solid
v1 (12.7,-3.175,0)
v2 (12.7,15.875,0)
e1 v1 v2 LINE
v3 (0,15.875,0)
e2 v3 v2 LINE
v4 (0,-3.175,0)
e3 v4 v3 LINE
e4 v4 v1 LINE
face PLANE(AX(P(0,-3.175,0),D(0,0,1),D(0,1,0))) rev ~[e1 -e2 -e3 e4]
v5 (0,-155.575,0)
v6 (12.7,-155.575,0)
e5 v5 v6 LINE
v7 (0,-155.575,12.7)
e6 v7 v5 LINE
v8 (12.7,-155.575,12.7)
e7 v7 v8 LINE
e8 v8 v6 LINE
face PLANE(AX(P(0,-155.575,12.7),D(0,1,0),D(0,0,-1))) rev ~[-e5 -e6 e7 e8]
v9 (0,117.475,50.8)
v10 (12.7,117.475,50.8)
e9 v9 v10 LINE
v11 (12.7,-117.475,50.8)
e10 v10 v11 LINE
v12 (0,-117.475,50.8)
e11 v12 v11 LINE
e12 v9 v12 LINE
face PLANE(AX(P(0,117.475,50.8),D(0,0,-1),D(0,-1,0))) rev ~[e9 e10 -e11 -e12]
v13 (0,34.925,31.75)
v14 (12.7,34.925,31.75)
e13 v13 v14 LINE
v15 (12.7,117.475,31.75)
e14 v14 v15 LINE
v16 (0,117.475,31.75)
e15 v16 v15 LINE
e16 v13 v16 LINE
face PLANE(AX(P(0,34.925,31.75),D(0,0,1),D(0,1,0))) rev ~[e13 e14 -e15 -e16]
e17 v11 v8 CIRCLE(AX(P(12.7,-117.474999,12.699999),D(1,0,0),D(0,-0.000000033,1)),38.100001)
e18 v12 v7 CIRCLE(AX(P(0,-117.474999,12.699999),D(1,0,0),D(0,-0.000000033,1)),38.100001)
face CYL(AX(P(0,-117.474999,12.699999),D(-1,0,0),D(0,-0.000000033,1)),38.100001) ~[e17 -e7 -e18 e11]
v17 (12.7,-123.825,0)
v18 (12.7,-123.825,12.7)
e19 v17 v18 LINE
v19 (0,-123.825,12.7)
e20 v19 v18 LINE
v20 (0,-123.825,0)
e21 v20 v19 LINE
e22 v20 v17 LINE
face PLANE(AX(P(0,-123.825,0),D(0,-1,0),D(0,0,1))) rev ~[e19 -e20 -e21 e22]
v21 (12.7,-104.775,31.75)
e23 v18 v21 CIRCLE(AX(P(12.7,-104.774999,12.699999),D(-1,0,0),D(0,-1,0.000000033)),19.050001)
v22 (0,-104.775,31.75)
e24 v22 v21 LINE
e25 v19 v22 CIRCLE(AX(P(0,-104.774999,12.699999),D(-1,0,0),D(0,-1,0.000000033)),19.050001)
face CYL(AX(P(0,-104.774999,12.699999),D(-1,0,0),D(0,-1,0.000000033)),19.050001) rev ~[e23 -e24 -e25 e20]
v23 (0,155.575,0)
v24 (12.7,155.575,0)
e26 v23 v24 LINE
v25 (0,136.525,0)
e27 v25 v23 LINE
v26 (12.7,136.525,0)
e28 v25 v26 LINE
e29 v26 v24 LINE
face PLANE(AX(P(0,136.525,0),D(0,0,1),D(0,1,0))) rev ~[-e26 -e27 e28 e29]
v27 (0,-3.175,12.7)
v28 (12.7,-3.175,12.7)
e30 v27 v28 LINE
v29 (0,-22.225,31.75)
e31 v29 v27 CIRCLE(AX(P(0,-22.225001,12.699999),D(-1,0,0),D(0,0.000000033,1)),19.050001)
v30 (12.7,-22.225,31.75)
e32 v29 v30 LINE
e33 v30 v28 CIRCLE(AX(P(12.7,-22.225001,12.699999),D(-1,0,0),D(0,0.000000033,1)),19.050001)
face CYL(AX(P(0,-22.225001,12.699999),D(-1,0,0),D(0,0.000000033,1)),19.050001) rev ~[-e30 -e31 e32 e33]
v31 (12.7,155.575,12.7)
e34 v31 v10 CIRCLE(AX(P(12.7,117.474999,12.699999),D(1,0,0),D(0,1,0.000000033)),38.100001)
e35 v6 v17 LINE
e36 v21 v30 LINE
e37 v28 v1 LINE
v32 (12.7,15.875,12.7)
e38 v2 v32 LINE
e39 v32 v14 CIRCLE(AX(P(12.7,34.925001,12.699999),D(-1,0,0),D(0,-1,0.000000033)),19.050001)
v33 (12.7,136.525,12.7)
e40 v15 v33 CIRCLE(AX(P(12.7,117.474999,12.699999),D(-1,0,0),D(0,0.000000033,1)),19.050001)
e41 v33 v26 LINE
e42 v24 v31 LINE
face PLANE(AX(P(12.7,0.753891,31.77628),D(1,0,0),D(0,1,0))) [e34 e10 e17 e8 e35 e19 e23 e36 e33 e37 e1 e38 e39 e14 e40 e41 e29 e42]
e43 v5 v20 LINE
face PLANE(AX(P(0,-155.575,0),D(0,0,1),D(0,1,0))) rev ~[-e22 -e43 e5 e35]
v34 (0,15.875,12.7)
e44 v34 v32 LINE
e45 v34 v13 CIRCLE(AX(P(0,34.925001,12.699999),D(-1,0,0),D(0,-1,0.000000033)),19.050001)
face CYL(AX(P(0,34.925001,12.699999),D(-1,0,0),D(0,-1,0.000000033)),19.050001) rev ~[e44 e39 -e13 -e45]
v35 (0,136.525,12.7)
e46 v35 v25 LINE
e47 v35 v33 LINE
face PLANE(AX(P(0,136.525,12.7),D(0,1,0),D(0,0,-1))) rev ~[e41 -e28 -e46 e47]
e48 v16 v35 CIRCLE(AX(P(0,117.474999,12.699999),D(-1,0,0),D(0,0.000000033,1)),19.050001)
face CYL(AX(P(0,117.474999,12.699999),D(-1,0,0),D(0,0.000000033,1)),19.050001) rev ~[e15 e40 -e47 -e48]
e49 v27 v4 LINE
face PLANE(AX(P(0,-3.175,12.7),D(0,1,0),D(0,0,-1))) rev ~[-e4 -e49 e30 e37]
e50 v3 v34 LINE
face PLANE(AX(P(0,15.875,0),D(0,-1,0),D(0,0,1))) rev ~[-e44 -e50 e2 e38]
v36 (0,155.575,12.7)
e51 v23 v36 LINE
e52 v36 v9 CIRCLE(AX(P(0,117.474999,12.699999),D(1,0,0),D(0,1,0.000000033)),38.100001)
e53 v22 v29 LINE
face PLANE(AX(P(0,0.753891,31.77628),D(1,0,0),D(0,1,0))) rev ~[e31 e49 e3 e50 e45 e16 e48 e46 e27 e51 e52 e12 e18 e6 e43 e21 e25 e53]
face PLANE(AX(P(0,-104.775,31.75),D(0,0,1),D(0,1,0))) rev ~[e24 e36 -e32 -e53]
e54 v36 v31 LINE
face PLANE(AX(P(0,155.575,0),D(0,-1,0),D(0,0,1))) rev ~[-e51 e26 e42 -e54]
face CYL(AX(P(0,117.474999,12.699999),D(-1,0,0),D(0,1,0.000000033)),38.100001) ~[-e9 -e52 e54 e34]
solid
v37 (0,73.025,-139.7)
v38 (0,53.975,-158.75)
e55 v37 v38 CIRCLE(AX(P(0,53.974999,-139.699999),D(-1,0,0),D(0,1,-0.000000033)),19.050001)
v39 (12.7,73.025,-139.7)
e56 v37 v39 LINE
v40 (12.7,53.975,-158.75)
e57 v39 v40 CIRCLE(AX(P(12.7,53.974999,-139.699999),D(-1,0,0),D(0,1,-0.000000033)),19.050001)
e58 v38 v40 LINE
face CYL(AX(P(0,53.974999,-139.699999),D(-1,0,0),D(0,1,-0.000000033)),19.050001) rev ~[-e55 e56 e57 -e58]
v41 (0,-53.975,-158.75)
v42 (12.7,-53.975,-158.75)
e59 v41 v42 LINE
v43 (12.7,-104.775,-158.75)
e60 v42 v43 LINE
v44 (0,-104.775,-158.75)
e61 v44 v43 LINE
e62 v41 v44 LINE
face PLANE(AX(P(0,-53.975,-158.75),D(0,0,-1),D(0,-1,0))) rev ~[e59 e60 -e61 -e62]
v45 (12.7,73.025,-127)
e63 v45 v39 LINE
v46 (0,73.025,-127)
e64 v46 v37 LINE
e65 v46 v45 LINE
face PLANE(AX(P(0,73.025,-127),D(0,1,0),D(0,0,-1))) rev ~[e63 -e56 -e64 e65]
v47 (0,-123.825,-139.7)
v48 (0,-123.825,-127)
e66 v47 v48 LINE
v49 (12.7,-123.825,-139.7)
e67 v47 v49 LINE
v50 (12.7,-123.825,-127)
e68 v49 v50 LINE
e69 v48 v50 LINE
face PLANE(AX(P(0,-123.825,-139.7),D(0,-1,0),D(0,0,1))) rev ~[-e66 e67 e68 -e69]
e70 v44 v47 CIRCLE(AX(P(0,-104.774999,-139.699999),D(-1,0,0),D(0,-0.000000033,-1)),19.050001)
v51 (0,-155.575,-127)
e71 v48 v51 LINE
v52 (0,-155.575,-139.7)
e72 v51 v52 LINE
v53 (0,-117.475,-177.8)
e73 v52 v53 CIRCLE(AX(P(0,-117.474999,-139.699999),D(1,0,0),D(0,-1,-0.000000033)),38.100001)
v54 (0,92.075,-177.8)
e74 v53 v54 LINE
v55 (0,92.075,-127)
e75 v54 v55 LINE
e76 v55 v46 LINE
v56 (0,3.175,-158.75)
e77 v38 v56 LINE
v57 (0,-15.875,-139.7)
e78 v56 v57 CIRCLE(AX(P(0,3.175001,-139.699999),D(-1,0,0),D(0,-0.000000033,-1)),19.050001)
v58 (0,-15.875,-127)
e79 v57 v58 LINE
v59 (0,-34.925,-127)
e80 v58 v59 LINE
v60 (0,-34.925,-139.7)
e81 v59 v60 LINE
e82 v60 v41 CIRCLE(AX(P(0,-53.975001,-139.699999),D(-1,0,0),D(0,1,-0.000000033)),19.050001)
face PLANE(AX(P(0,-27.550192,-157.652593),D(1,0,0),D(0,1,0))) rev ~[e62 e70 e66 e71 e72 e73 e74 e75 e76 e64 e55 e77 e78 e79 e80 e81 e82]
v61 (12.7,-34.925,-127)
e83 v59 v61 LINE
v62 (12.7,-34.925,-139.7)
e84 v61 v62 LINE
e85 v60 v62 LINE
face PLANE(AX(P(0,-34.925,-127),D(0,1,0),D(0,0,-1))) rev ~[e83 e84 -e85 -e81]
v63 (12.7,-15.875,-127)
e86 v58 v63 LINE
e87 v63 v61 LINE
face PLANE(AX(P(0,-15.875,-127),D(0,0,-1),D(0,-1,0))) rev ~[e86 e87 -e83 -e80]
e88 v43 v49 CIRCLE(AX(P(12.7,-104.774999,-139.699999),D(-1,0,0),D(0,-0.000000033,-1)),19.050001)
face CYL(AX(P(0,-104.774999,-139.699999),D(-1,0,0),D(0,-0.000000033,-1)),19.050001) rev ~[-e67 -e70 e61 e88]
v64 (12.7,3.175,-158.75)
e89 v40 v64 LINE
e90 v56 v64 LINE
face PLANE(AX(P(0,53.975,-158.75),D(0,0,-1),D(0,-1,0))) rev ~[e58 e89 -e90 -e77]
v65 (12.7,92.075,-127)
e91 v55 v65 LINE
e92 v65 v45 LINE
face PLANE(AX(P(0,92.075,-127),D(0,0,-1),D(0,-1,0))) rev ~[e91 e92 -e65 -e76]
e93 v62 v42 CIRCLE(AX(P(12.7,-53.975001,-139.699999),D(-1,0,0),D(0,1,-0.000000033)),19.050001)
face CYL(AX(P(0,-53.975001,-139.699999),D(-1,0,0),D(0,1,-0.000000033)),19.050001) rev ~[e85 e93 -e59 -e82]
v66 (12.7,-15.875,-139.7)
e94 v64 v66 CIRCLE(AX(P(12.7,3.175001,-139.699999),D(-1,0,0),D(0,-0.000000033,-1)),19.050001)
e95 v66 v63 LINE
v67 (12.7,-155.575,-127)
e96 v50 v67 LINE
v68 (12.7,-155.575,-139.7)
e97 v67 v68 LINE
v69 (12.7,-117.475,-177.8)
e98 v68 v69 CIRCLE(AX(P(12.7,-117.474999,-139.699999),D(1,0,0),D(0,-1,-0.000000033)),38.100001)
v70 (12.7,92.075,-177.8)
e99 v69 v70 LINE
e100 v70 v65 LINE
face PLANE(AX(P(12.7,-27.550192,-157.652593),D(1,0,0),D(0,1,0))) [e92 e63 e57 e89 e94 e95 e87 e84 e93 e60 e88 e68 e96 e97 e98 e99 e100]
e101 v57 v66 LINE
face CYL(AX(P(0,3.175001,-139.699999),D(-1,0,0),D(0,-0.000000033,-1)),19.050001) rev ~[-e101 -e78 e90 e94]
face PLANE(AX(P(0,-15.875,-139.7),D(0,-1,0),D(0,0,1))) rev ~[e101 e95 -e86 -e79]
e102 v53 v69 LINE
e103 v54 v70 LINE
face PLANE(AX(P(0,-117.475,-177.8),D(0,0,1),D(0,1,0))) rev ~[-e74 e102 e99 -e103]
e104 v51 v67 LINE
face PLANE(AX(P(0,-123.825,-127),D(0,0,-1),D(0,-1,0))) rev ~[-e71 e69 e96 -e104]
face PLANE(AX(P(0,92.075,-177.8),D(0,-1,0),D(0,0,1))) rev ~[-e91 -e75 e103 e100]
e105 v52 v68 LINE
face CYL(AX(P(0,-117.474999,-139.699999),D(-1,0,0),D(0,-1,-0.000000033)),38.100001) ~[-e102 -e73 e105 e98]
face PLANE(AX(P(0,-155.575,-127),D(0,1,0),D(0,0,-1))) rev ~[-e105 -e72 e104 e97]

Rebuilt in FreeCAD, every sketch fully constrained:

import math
import FreeCAD as App
import Part
import Sketcher

V = App.Vector
Q = App.Units.Quantity

doc = App.newDocument("Part")
body = doc.addObject("PartDesign::Body", "Body")

# Sketch on YZ plane
sketch1 = body.newObject("Sketcher::SketchObject", "Sketch")
sketch1.AttachmentSupport = (doc.getObject("YZ_Plane"), [""])
sketch1.MapMode = "FlatFace"
sketch1.addGeometry([
    Part.LineSegment(V(-155.575, 12.7, 0), V(-155.575, 0, 0)),  # 0
    Part.LineSegment(V(-155.575, 0, 0), V(-123.825, 0, 0)),  # 1
    Part.LineSegment(V(-123.825, 0, 0), V(-123.825, 12.7, 0)),  # 2
    Part.ArcOfCircle(Part.Circle(V(-104.774999, 12.699999, 0), V(0, 0, 1), 19.050001), math.radians(90.000002), math.radians(179.999998)),  # 3
    Part.LineSegment(V(-104.775, 31.75, 0), V(-22.225, 31.75, 0)),  # 4
    Part.ArcOfCircle(Part.Circle(V(-22.225001, 12.699999, 0), V(0, 0, 1), 19.050001), math.radians(0.000002), math.radians(89.999998)),  # 5
    Part.LineSegment(V(-3.175, 12.7, 0), V(-3.175, 0, 0)),  # 6
    Part.LineSegment(V(-3.175, 0, 0), V(15.875, 0, 0)),  # 7
    Part.LineSegment(V(15.875, 0, 0), V(15.875, 12.7, 0)),  # 8
    Part.ArcOfCircle(Part.Circle(V(34.925001, 12.699999, 0), V(0, 0, 1), 19.050001), math.radians(90.000002), math.radians(179.999998)),  # 9
    Part.LineSegment(V(34.925, 31.75, 0), V(117.475, 31.75, 0)),  # 10
    Part.ArcOfCircle(Part.Circle(V(117.474999, 12.699999, 0), V(0, 0, 1), 19.050001), math.radians(0.000002), math.radians(89.999998)),  # 11
    Part.LineSegment(V(136.525, 12.7, 0), V(136.525, 0, 0)),  # 12
    Part.LineSegment(V(136.525, 0, 0), V(155.575, 0, 0)),  # 13
    Part.LineSegment(V(155.575, 0, 0), V(155.575, 12.7, 0)),  # 14
    Part.ArcOfCircle(Part.Circle(V(117.474999, 12.699999, 0), V(0, 0, 1), 38.100001), math.radians(0.000002), math.radians(89.999998)),  # 15
    Part.LineSegment(V(117.475, 50.8, 0), V(-117.475, 50.8, 0)),  # 16
    Part.ArcOfCircle(Part.Circle(V(-117.474999, 12.699999, 0), V(0, 0, 1), 38.100001), math.radians(90.000002), math.radians(179.999998)),  # 17
], False)
sketch1.addConstraint([
    Sketcher.Constraint("Coincident", 0, 2, 1, 1),
    Sketcher.Constraint("Coincident", 1, 2, 2, 1),
    Sketcher.Constraint("Tangent", 2, 2, 3, 2),
    Sketcher.Constraint("Tangent", 3, 1, 4, 1),
    Sketcher.Constraint("Tangent", 4, 2, 5, 2),
    Sketcher.Constraint("Tangent", 5, 1, 6, 1),
    Sketcher.Constraint("Coincident", 6, 2, 7, 1),
    Sketcher.Constraint("Coincident", 7, 2, 8, 1),
    Sketcher.Constraint("Tangent", 8, 2, 9, 2),
    Sketcher.Constraint("Tangent", 9, 1, 10, 1),
    Sketcher.Constraint("Tangent", 10, 2, 11, 2),
    Sketcher.Constraint("Tangent", 11, 1, 12, 1),
    Sketcher.Constraint("Coincident", 12, 2, 13, 1),
    Sketcher.Constraint("Coincident", 13, 2, 14, 1),
    Sketcher.Constraint("Tangent", 14, 2, 15, 1),
    Sketcher.Constraint("Tangent", 15, 2, 16, 1),
    Sketcher.Constraint("Tangent", 16, 2, 17, 1),
    Sketcher.Constraint("Tangent", 17, 2, 0, 1),
    Sketcher.Constraint("Vertical", 0),
    Sketcher.Constraint("Horizontal", 1),
    Sketcher.Constraint("Vertical", 2),
    Sketcher.Constraint("Horizontal", 4),
    Sketcher.Constraint("Vertical", 6),
    Sketcher.Constraint("Horizontal", 7),
    Sketcher.Constraint("Vertical", 8),
    Sketcher.Constraint("Horizontal", 10),
    Sketcher.Constraint("Vertical", 12),
    Sketcher.Constraint("Horizontal", 13),
    Sketcher.Constraint("Vertical", 14),
    Sketcher.Constraint("Horizontal", 16),
    Sketcher.Constraint("Coincident", 15, 3, 11, 3),
    Sketcher.Constraint("Equal", 3, 5),
    Sketcher.Constraint("Equal", 5, 9),
    Sketcher.Constraint("Equal", 9, 11),
    Sketcher.Constraint("Equal", 15, 17),
    Sketcher.Constraint("Symmetric", 0, 2, 13, 2, -1, 1),
    Sketcher.Constraint("PointOnObject", 0, 2, -1),
    Sketcher.Constraint("PointOnObject", 6, 2, -1),
    Sketcher.Constraint("Horizontal", 5, 3, 9, 3),
    Sketcher.Constraint("Equal", 4, 10),
    Sketcher.Constraint("Equal", 7, 13),
    Sketcher.Constraint("Radius", 15, Q("1.5 in")),
    Sketcher.Constraint("Radius", 3, Q("0.75 in")),
    Sketcher.Constraint("DistanceY", 0, 2, 0, 1, Q("0.5 in")),
    Sketcher.Constraint("DistanceX", 17, 3, 9, 3, Q("6 in")),
    Sketcher.Constraint("DistanceX", 0, 2, 3, 3, Q("2 in")),
])
pad1 = body.newObject("PartDesign::Pad", "Pad")
pad1.Profile = sketch1
pad1.Length = Q("0.5 in")
body2 = doc.addObject("PartDesign::Body", "Body001")

# Sketch on YZ plane
sketch2 = body2.newObject("Sketcher::SketchObject", "Sketch001")
sketch2.AttachmentSupport = (doc.getObject("YZ_Plane001"), [""])
sketch2.MapMode = "FlatFace"
sketch2.addGeometry([
    Part.LineSegment(V(-123.825, -127, 0), V(-155.575, -127, 0)),  # 0
    Part.LineSegment(V(-155.575, -127, 0), V(-155.575, -139.7, 0)),  # 1
    Part.ArcOfCircle(Part.Circle(V(-117.474999, -139.699999, 0), V(0, 0, 1), 38.100001), math.radians(-179.999998), math.radians(-90.000002)),  # 2
    Part.LineSegment(V(-117.475, -177.8, 0), V(92.075, -177.8, 0)),  # 3
    Part.LineSegment(V(92.075, -177.8, 0), V(92.075, -127, 0)),  # 4
    Part.LineSegment(V(92.075, -127, 0), V(73.025, -127, 0)),  # 5
    Part.LineSegment(V(73.025, -127, 0), V(73.025, -139.7, 0)),  # 6
    Part.ArcOfCircle(Part.Circle(V(53.974999, -139.699999, 0), V(0, 0, 1), 19.050001), math.radians(-89.999998), math.radians(-0.000002)),  # 7
    Part.LineSegment(V(53.975, -158.75, 0), V(3.175, -158.75, 0)),  # 8
    Part.ArcOfCircle(Part.Circle(V(3.175001, -139.699999, 0), V(0, 0, 1), 19.050001), math.radians(-179.999998), math.radians(-90.000002)),  # 9
    Part.LineSegment(V(-15.875, -139.7, 0), V(-15.875, -127, 0)),  # 10
    Part.LineSegment(V(-15.875, -127, 0), V(-34.925, -127, 0)),  # 11
    Part.LineSegment(V(-34.925, -127, 0), V(-34.925, -139.7, 0)),  # 12
    Part.ArcOfCircle(Part.Circle(V(-53.975001, -139.699999, 0), V(0, 0, 1), 19.050001), math.radians(-89.999998), math.radians(-0.000002)),  # 13
    Part.LineSegment(V(-53.975, -158.75, 0), V(-104.775, -158.75, 0)),  # 14
    Part.ArcOfCircle(Part.Circle(V(-104.774999, -139.699999, 0), V(0, 0, 1), 19.050001), math.radians(-179.999998), math.radians(-90.000002)),  # 15
    Part.LineSegment(V(-123.825, -139.7, 0), V(-123.825, -127, 0)),  # 16
], False)
sketch2.addConstraint([
    Sketcher.Constraint("Coincident", 0, 2, 1, 1),
    Sketcher.Constraint("Tangent", 1, 2, 2, 1),
    Sketcher.Constraint("Tangent", 2, 2, 3, 1),
    Sketcher.Constraint("Coincident", 3, 2, 4, 1),
    Sketcher.Constraint("Coincident", 4, 2, 5, 1),
    Sketcher.Constraint("Coincident", 5, 2, 6, 1),
    Sketcher.Constraint("Tangent", 6, 2, 7, 2),
    Sketcher.Constraint("Tangent", 7, 1, 8, 1),
    Sketcher.Constraint("Tangent", 8, 2, 9, 2),
    Sketcher.Constraint("Tangent", 9, 1, 10, 1),
    Sketcher.Constraint("Coincident", 10, 2, 11, 1),
    Sketcher.Constraint("Coincident", 11, 2, 12, 1),
    Sketcher.Constraint("Tangent", 12, 2, 13, 2),
    Sketcher.Constraint("Tangent", 13, 1, 14, 1),
    Sketcher.Constraint("Tangent", 14, 2, 15, 2),
    Sketcher.Constraint("Tangent", 15, 1, 16, 1),
    Sketcher.Constraint("Coincident", 16, 2, 0, 1),
    Sketcher.Constraint("Horizontal", 0),
    Sketcher.Constraint("Vertical", 1),
    Sketcher.Constraint("Horizontal", 3),
    Sketcher.Constraint("Vertical", 4),
    Sketcher.Constraint("Horizontal", 5),
    Sketcher.Constraint("Vertical", 6),
    Sketcher.Constraint("Horizontal", 8),
    Sketcher.Constraint("Vertical", 10),
    Sketcher.Constraint("Horizontal", 11),
    Sketcher.Constraint("Vertical", 12),
    Sketcher.Constraint("Horizontal", 14),
    Sketcher.Constraint("Vertical", 16),
    Sketcher.Constraint("Equal", 7, 9),
    Sketcher.Constraint("Equal", 9, 13),
    Sketcher.Constraint("Equal", 13, 15),
    Sketcher.Constraint("Symmetric", 7, 3, 13, 3, -2),
    Sketcher.Constraint("Horizontal", 2, 3, 7, 3),
    Sketcher.Constraint("Horizontal", 0, 2, 4, 2),
    Sketcher.Constraint("Horizontal", 5, 2, 10, 2),
    Sketcher.Constraint("Equal", 5, 11),
    Sketcher.Constraint("Equal", 8, 14),
    Sketcher.Constraint("Equal", 14, 4),
    Sketcher.Constraint("Radius", 2, Q("1.5 in")),
    Sketcher.Constraint("DistanceX", 8, 2, 8, 1, Q("2 in")),
    Sketcher.Constraint("Radius", 7, Q("0.75 in")),
    Sketcher.Constraint("DistanceY", 0, 2, -1, 1, Q("5 in")),
    Sketcher.Constraint("DistanceX", 0, 2, 15, 3, Q("2 in")),
    Sketcher.Constraint("DistanceX", 13, 3, 5, 2, Q("5 in")),
])
pad2 = body2.newObject("PartDesign::Pad", "Pad001")
pad2.Profile = sketch2
pad2.Length = Q("0.5 in")

doc.recompute()
